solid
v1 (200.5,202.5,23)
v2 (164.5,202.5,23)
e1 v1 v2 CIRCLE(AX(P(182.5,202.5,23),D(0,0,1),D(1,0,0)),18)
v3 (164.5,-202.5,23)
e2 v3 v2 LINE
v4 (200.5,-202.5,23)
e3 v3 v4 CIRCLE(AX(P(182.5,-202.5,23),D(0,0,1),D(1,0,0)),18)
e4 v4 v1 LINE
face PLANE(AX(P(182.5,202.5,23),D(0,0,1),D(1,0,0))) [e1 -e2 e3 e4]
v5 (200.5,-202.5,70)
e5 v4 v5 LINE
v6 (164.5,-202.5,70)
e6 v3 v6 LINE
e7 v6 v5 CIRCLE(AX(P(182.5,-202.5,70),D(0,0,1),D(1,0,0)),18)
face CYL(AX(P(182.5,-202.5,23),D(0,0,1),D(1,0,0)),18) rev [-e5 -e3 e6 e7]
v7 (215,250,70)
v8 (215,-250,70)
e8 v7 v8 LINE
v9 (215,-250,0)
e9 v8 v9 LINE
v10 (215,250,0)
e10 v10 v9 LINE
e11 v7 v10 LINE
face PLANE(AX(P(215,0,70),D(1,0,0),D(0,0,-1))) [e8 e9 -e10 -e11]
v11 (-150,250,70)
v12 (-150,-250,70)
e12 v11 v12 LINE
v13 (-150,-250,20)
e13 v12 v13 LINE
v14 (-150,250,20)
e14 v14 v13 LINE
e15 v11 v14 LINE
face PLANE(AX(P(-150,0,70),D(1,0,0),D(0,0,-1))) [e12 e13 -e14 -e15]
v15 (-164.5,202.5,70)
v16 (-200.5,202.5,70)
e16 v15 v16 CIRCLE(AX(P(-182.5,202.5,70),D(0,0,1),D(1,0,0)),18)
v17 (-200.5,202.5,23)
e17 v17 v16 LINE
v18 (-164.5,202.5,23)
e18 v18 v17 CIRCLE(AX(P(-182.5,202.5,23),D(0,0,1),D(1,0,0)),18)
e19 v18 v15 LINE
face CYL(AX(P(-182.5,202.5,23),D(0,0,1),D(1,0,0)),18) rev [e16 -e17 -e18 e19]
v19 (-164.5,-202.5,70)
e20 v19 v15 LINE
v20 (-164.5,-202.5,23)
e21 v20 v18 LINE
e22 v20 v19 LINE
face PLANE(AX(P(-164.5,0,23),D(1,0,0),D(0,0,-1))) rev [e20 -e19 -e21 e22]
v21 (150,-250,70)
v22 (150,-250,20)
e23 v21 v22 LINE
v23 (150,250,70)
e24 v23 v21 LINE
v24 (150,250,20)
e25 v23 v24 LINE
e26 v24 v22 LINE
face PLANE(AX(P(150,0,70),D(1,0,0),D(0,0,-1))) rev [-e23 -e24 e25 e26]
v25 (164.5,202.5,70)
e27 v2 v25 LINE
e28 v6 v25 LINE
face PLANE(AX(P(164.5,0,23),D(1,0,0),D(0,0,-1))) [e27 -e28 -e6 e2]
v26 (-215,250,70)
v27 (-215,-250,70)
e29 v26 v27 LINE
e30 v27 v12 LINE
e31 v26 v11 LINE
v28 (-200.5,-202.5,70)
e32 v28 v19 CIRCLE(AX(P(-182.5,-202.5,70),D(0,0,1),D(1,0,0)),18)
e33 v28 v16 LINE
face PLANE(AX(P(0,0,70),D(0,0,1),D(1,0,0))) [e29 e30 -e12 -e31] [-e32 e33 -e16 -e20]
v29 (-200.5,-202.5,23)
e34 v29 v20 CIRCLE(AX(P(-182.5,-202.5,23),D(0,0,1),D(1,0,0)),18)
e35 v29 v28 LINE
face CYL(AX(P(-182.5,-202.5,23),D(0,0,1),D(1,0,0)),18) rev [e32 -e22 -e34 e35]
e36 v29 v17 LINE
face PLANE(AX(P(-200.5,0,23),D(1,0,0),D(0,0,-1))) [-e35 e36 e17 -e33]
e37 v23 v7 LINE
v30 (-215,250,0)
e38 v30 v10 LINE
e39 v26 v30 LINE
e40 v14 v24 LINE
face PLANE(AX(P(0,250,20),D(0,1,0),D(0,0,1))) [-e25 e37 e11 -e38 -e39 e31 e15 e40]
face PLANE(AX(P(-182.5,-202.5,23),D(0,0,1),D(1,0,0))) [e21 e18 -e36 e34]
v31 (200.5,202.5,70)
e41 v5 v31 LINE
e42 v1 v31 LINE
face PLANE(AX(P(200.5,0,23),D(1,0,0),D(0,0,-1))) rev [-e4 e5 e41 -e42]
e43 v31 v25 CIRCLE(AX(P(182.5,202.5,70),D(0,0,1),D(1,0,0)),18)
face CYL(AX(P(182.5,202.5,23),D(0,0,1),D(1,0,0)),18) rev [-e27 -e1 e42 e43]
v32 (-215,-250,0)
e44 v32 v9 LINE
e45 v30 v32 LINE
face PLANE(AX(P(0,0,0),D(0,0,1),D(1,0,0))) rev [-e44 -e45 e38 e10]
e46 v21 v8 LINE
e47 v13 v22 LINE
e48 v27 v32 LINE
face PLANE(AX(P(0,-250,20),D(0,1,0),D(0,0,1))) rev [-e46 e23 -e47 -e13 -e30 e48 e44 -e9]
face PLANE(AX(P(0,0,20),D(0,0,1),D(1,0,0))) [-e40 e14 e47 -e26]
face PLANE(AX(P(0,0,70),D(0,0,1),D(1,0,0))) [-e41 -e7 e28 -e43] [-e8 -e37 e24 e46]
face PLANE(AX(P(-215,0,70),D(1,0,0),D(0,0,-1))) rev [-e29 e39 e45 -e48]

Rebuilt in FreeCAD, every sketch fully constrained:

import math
import FreeCAD as App
import Part
import Sketcher

V = App.Vector

doc = App.newDocument("Part")
params = doc.addObject("Spreadsheet::Sheet", "Params")
for row, (alias, value) in enumerate([
    ("sketch1_width", "300 mm"),
    ("sketch1_height", "500 mm"),
    ("pad1_length", "20 mm"),
    ("sketch2_width", "65 mm"),
    ("sketch2_height", "500 mm"),
    ("pad2_length", "70 mm"),
    ("sketch3_radius", "18 mm"),
    ("sketch3_height", "405 mm"),
    ("pocket1_length", "47 mm"),
], start=1):
    params.set(f"A{row}", alias)
    params.set(f"B{row}", "=" + value)
    params.setAlias(f"B{row}", alias)

body = doc.addObject("PartDesign::Body", "Body")

# Sketch on XY plane
sketch1 = doc.addObject("Sketcher::SketchObject", "Sketch")
body.addObject(sketch1)
sketch1.AttachmentSupport = (doc.XY_Plane, [""])
sketch1.MapMode = "FlatFace"
sketch1.addGeometry(Part.LineSegment(V(-150, 250, 0), V(-150, -250, 0)), False)
sketch1.addGeometry(Part.LineSegment(V(-150, -250, 0), V(150, -250, 0)), False)
sketch1.addGeometry(Part.LineSegment(V(150, -250, 0), V(150, 250, 0)), False)
sketch1.addGeometry(Part.LineSegment(V(150, 250, 0), V(-150, 250, 0)), False)
sketch1.addConstraint(Sketcher.Constraint("Coincident", 0, 2, 1, 1))
sketch1.addConstraint(Sketcher.Constraint("Coincident", 1, 2, 2, 1))
sketch1.addConstraint(Sketcher.Constraint("Coincident", 2, 2, 3, 1))
sketch1.addConstraint(Sketcher.Constraint("Coincident", 3, 2, 0, 1))
sketch1.addConstraint(Sketcher.Constraint("Vertical", 0))
sketch1.addConstraint(Sketcher.Constraint("Horizontal", 1))
sketch1.addConstraint(Sketcher.Constraint("Vertical", 2))
sketch1.addConstraint(Sketcher.Constraint("Horizontal", 3))
sketch1.addConstraint(Sketcher.Constraint("Symmetric", 0, 2, 2, 2, -1, 1))
sketch1.addConstraint(Sketcher.Constraint("DistanceX", 1, 1, 1, 2, 300.0))
sketch1.addConstraint(Sketcher.Constraint("DistanceY", 0, 2, 0, 1, 500.0))
sketch1.setExpression("Constraints[9]", "Params.sketch1_width")
sketch1.setExpression("Constraints[10]", "Params.sketch1_height")
pad1 = doc.addObject("PartDesign::Pad", "Pad")
body.addObject(pad1)
pad1.Profile = sketch1
pad1.setExpression("Length", "Params.pad1_length")

# Sketch on XY plane
sketch2 = doc.addObject("Sketcher::SketchObject", "Sketch001")
body.addObject(sketch2)
sketch2.AttachmentSupport = (doc.XY_Plane, [""])
sketch2.MapMode = "FlatFace"
sketch2.addGeometry(Part.LineSegment(V(150, 250, 0), V(150, -250, 0)), False)
sketch2.addGeometry(Part.LineSegment(V(150, -250, 0), V(215, -250, 0)), False)
sketch2.addGeometry(Part.LineSegment(V(215, -250, 0), V(215, 250, 0)), False)
sketch2.addGeometry(Part.LineSegment(V(215, 250, 0), V(150, 250, 0)), False)
sketch2.addGeometry(Part.LineSegment(V(-215, 250, 0), V(-215, -250, 0)), False)
sketch2.addGeometry(Part.LineSegment(V(-215, -250, 0), V(-150, -250, 0)), False)
sketch2.addGeometry(Part.LineSegment(V(-150, -250, 0), V(-150, 250, 0)), False)
sketch2.addGeometry(Part.LineSegment(V(-150, 250, 0), V(-215, 250, 0)), False)
sketch2.addConstraint(Sketcher.Constraint("Coincident", 0, 2, 1, 1))
sketch2.addConstraint(Sketcher.Constraint("Coincident", 1, 2, 2, 1))
sketch2.addConstraint(Sketcher.Constraint("Coincident", 2, 2, 3, 1))
sketch2.addConstraint(Sketcher.Constraint("Coincident", 3, 2, 0, 1))
sketch2.addConstraint(Sketcher.Constraint("Coincident", 4, 2, 5, 1))
sketch2.addConstraint(Sketcher.Constraint("Coincident", 5, 2, 6, 1))
sketch2.addConstraint(Sketcher.Constraint("Coincident", 6, 2, 7, 1))
sketch2.addConstraint(Sketcher.Constraint("Coincident", 7, 2, 4, 1))
sketch2.addConstraint(Sketcher.Constraint("Vertical", 0))
sketch2.addConstraint(Sketcher.Constraint("Horizontal", 1))
sketch2.addConstraint(Sketcher.Constraint("Vertical", 2))
sketch2.addConstraint(Sketcher.Constraint("Horizontal", 3))
sketch2.addConstraint(Sketcher.Constraint("Vertical", 4))
sketch2.addConstraint(Sketcher.Constraint("Horizontal", 5))
sketch2.addConstraint(Sketcher.Constraint("Vertical", 6))
sketch2.addConstraint(Sketcher.Constraint("Horizontal", 7))
sketch2.addConstraint(Sketcher.Constraint("Symmetric", 2, 2, 4, 2, -1, 1))
sketch2.addConstraint(Sketcher.Constraint("Symmetric", 0, 2, 6, 2, -1, 1))
sketch2.addConstraint(Sketcher.Constraint("Horizontal", 1, 2, 4, 2))
sketch2.addConstraint(Sketcher.Constraint("DistanceX", 1, 1, 1, 2, 65.0))
sketch2.addConstraint(Sketcher.Constraint("DistanceY", 0, 2, 0, 1, 500.0))
sketch2.addConstraint(Sketcher.Constraint("DistanceX", -1, 1, 0, 2, 150.0))
sketch2.setExpression("Constraints[19]", "Params.sketch2_width")
sketch2.setExpression("Constraints[20]", "Params.sketch2_height")
pad2 = doc.addObject("PartDesign::Pad", "Pad001")
body.addObject(pad2)
pad2.Profile = sketch2
pad2.setExpression("Length", "Params.pad2_length")

# Sketch on XY plane
sketch3 = doc.addObject("Sketcher::SketchObject", "Sketch002")
body.addObject(sketch3)
sketch3.AttachmentSupport = (doc.XY_Plane, [""])
sketch3.MapMode = "FlatFace"
sketch3.AttachmentOffset = App.Placement(V(0, 0, 70), App.Rotation())
sketch3.addGeometry(Part.LineSegment(V(-164, -202, 0), V(-164, 202, 0)), False)
sketch3.addGeometry(Part.ArcOfCircle(Part.Circle(V(-182, 202, 0), V(0, 0, 1), 18), math.radians(0), math.radians(180)), False)
sketch3.addGeometry(Part.LineSegment(V(-200, 202, 0), V(-200, -202, 0)), False)
sketch3.addGeometry(Part.ArcOfCircle(Part.Circle(V(-182, -202, 0), V(0, 0, 1), 18), math.radians(180), math.radians(360)), False)
sketch3.addGeometry(Part.LineSegment(V(164, 202, 0), V(164, -202, 0)), False)
sketch3.addGeometry(Part.ArcOfCircle(Part.Circle(V(182, -202, 0), V(0, 0, 1), 18), math.radians(180), math.radians(360)), False)
sketch3.addGeometry(Part.LineSegment(V(200, -202, 0), V(200, 202, 0)), False)
sketch3.addGeometry(Part.ArcOfCircle(Part.Circle(V(182, 202, 0), V(0, 0, 1), 18), math.radians(0), math.radians(180)), False)
sketch3.addConstraint(Sketcher.Constraint("Tangent", 0, 2, 1, 1))
sketch3.addConstraint(Sketcher.Constraint("Tangent", 1, 2, 2, 1))
sketch3.addConstraint(Sketcher.Constraint("Tangent", 2, 2, 3, 1))
sketch3.addConstraint(Sketcher.Constraint("Tangent", 3, 2, 0, 1))
sketch3.addConstraint(Sketcher.Constraint("Tangent", 4, 2, 5, 1))
sketch3.addConstraint(Sketcher.Constraint("Tangent", 5, 2, 6, 1))
sketch3.addConstraint(Sketcher.Constraint("Tangent", 6, 2, 7, 1))
sketch3.addConstraint(Sketcher.Constraint("Tangent", 7, 2, 4, 1))
sketch3.addConstraint(Sketcher.Constraint("Vertical", 0))
sketch3.addConstraint(Sketcher.Constraint("Vertical", 2))
sketch3.addConstraint(Sketcher.Constraint("Vertical", 4))
sketch3.addConstraint(Sketcher.Constraint("Vertical", 6))
sketch3.addConstraint(Sketcher.Constraint("Equal", 3, 5))
sketch3.addConstraint(Sketcher.Constraint("Symmetric", 1, 3, 5, 3, -1, 1))
sketch3.addConstraint(Sketcher.Constraint("Horizontal", 3, 3, 5, 3))
sketch3.addConstraint(Sketcher.Constraint("Horizontal", 1, 3, 7, 3))
sketch3.addConstraint(Sketcher.Constraint("Radius", 1, 18.0))
sketch3.addConstraint(Sketcher.Constraint("DistanceY", 0, 1, 0, 2, 405.0))
sketch3.addConstraint(Sketcher.Constraint("DistanceX", 3, 3, 5, 3, 365.0))
sketch3.setExpression("Constraints[16]", "Params.sketch3_radius")
sketch3.setExpression("Constraints[17]", "Params.sketch3_height")
pocket1 = doc.addObject("PartDesign::Pocket", "Pocket")
body.addObject(pocket1)
pocket1.Profile = sketch3
pocket1.setExpression("Length", "Params.pocket1_length")

doc.recompute()
